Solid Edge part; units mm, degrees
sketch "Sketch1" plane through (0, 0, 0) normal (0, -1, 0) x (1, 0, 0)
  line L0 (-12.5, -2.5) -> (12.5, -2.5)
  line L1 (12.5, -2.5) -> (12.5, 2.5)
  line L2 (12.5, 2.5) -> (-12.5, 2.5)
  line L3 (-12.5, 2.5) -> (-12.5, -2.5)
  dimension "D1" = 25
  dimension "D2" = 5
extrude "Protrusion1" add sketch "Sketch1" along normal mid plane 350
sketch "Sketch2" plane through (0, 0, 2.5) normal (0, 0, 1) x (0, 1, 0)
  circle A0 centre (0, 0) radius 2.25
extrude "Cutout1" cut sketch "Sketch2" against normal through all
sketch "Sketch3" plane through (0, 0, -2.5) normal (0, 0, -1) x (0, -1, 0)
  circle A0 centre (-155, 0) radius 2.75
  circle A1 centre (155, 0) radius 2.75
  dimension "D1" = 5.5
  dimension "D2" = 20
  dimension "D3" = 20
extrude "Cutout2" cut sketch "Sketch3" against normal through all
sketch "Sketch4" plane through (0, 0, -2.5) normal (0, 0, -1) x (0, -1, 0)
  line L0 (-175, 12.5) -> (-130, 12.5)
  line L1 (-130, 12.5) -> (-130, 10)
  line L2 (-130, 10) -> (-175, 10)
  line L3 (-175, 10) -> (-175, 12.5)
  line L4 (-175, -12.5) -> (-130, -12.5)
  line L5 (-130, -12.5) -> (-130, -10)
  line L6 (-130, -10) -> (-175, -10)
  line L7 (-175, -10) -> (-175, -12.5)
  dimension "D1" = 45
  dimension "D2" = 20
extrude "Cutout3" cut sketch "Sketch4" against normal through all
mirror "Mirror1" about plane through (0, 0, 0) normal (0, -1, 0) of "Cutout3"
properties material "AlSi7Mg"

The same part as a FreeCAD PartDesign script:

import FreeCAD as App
import Part
import Sketcher
Q = App.Units.Quantity

doc = App.newDocument("Part")
params = doc.addObject("Spreadsheet::Sheet", "Params")
for row, (alias, value) in enumerate([
    ("sketch1_height", "5 mm"),
    ("pad1_length", "350 mm"),
    ("sketch2_diameter", "4.5 mm"),
    ("sketch3_diameter", "5.5 mm"),
    ("sketch4_height", "45 mm"),
    ("sketch4_width", "2.5 mm"),
], start=1):
    params.set(f"A{row}", alias)
    params.set(f"B{row}", "=" + value)
    params.setAlias(f"B{row}", alias)

body = doc.addObject("PartDesign::Body", "Body")

# Sketch on XZ plane
sketch1 = doc.addObject("Sketcher::SketchObject", "Sketch")
body.addObject(sketch1)
sketch1.AttachmentSupport = (doc.XZ_Plane, [""])
sketch1.MapMode = "FlatFace"
sketch1.addGeometry([
    Part.LineSegment(App.Vector(-12, 2, 0), App.Vector(-12, -2, 0)),
    Part.LineSegment(App.Vector(-12, -2, 0), App.Vector(12, -2, 0)),
    Part.LineSegment(App.Vector(12, -2, 0), App.Vector(12, 2, 0)),
    Part.LineSegment(App.Vector(12, 2, 0), App.Vector(-12, 2, 0)),
], False)
sketch1.addConstraint([
    Sketcher.Constraint("Coincident", 0, 2, 1, 1),
    Sketcher.Constraint("Coincident", 1, 2, 2, 1),
    Sketcher.Constraint("Coincident", 2, 2, 3, 1),
    Sketcher.Constraint("Coincident", 3, 2, 0, 1),
    Sketcher.Constraint("Vertical", 0),
    Sketcher.Constraint("Horizontal", 1),
    Sketcher.Constraint("Vertical", 2),
    Sketcher.Constraint("Horizontal", 3),
    Sketcher.Constraint("Symmetric", 0, 2, 2, 2, -1, 1),
    Sketcher.Constraint("DistanceX", 0, 2, -1, 1, Q("12.5 mm")),
    Sketcher.Constraint("DistanceY", 0, 2, 0, 1, Q("5 mm")),
])
sketch1.setExpression("Constraints[10]", "Params.sketch1_height")
pad1 = doc.addObject("PartDesign::Pad", "Pad")
body.addObject(pad1)
pad1.Profile = sketch1
pad1.setExpression("Length", "Params.pad1_length")
pad1.Midplane = True

# Sketch on XY plane
sketch2 = doc.addObject("Sketcher::SketchObject", "Sketch001")
body.addObject(sketch2)
sketch2.AttachmentSupport = (doc.XY_Plane, [""])
sketch2.MapMode = "FlatFace"
sketch2.AttachmentOffset = App.Placement(App.Vector(0, 0, 2.5), App.Rotation())
sketch2.addGeometry(Part.Circle(App.Vector(0, 0, 0), App.Vector(0, 0, 1), 2.2), False)
sketch2.addConstraint([
    Sketcher.Constraint("Coincident", 0, 3, -1, 1),
    Sketcher.Constraint("Diameter", 0, Q("4.5 mm")),
])
sketch2.setExpression("Constraints[1]", "Params.sketch2_diameter")
pocket1 = doc.addObject("PartDesign::Pocket", "Pocket")
body.addObject(pocket1)
pocket1.Profile = sketch2
pocket1.Type = "ThroughAll"

# Sketch on XY plane
sketch3 = doc.addObject("Sketcher::SketchObject", "Sketch002")
body.addObject(sketch3)
sketch3.AttachmentSupport = (doc.XY_Plane, [""])
sketch3.MapMode = "FlatFace"
sketch3.AttachmentOffset = App.Placement(App.Vector(0, 0, -2.5), App.Rotation())
sketch3.addGeometry([
    Part.Circle(App.Vector(0, 155, 0), App.Vector(0, 0, 1), 2.8),
    Part.Circle(App.Vector(0, -155, 0), App.Vector(0, 0, 1), 2.8),
], False)
sketch3.addConstraint([
    Sketcher.Constraint("Equal", 0, 1),
    Sketcher.Constraint("Symmetric", 0, 3, 1, 3, -1, 1),
    Sketcher.Constraint("PointOnObject", 0, 3, -2),
    Sketcher.Constraint("DistanceY", -1, 1, 0, 3, Q("155 mm")),
    Sketcher.Constraint("Diameter", 0, Q("5.5 mm")),
])
sketch3.setExpression("Constraints[4]", "Params.sketch3_diameter")
pocket2 = doc.addObject("PartDesign::Pocket", "Pocket001")
body.addObject(pocket2)
pocket2.Profile = sketch3
pocket2.Type = "ThroughAll"
pocket2.Reversed = True

# Sketch on XY plane
sketch4 = doc.addObject("Sketcher::SketchObject", "Sketch003")
body.addObject(sketch4)
sketch4.AttachmentSupport = (doc.XY_Plane, [""])
sketch4.MapMode = "FlatFace"
sketch4.AttachmentOffset = App.Placement(App.Vector(0, 0, -2.5), App.Rotation())
sketch4.addGeometry([
    Part.LineSegment(App.Vector(-12.5, 130, 0), App.Vector(-12.5, 175, 0)),  # 0
    Part.LineSegment(App.Vector(-12.5, 175, 0), App.Vector(-10, 175, 0)),  # 1
    Part.LineSegment(App.Vector(-10, 175, 0), App.Vector(-10, 130, 0)),  # 2
    Part.LineSegment(App.Vector(-10, 130, 0), App.Vector(-12.5, 130, 0)),  # 3
    Part.LineSegment(App.Vector(10, 175, 0), App.Vector(12.5, 175, 0)),  # 4
    Part.LineSegment(App.Vector(12.5, 175, 0), App.Vector(12.5, 130, 0)),  # 5
    Part.LineSegment(App.Vector(12.5, 130, 0), App.Vector(10, 130, 0)),  # 6
    Part.LineSegment(App.Vector(10, 130, 0), App.Vector(10, 175, 0)),  # 7
], False)
sketch4.addConstraint([
    Sketcher.Constraint("Coincident", 0, 2, 1, 1),
    Sketcher.Constraint("Coincident", 1, 2, 2, 1),
    Sketcher.Constraint("Coincident", 2, 2, 3, 1),
    Sketcher.Constraint("Coincident", 3, 2, 0, 1),
    Sketcher.Constraint("Coincident", 4, 2, 5, 1),
    Sketcher.Constraint("Coincident", 5, 2, 6, 1),
    Sketcher.Constraint("Coincident", 6, 2, 7, 1),
    Sketcher.Constraint("Coincident", 7, 2, 4, 1),
    Sketcher.Constraint("Vertical", 0),
    Sketcher.Constraint("Horizontal", 1),
    Sketcher.Constraint("Vertical", 2),
    Sketcher.Constraint("Horizontal", 3),
    Sketcher.Constraint("Horizontal", 4),
    Sketcher.Constraint("Vertical", 5),
    Sketcher.Constraint("Horizontal", 6),
    Sketcher.Constraint("Vertical", 7),
    Sketcher.Constraint("Symmetric", 0, 2, 4, 2, -2),
    Sketcher.Constraint("Symmetric", 2, 2, 6, 2, -2),
    Sketcher.Constraint("DistanceY", -1, 1, 0, 2, Q("175 mm")),
    Sketcher.Constraint("DistanceY", 0, 1, 0, 2, Q("45 mm")),
    Sketcher.Constraint("DistanceX", 1, 1, 1, 2, Q("2.5 mm")),
    Sketcher.Constraint("DistanceX", 1, 2, -1, 1, Q("10 mm")),
])
sketch4.setExpression("Constraints[19]", "Params.sketch4_height")
sketch4.setExpression("Constraints[20]", "Params.sketch4_width")
pocket3 = doc.addObject("PartDesign::Pocket", "Pocket002")
body.addObject(pocket3)
pocket3.Profile = sketch4
pocket3.Type = "ThroughAll"
pocket3.Reversed = True
doc.recompute()

mirrored = doc.addObject("PartDesign::Mirrored", "Mirrored")
body.addObject(mirrored)
mirrored.Originals = [pocket3]
mirrored.MirrorPlane = (doc.XZ_Plane, [""])
body.Tip = mirrored

doc.recompute()
